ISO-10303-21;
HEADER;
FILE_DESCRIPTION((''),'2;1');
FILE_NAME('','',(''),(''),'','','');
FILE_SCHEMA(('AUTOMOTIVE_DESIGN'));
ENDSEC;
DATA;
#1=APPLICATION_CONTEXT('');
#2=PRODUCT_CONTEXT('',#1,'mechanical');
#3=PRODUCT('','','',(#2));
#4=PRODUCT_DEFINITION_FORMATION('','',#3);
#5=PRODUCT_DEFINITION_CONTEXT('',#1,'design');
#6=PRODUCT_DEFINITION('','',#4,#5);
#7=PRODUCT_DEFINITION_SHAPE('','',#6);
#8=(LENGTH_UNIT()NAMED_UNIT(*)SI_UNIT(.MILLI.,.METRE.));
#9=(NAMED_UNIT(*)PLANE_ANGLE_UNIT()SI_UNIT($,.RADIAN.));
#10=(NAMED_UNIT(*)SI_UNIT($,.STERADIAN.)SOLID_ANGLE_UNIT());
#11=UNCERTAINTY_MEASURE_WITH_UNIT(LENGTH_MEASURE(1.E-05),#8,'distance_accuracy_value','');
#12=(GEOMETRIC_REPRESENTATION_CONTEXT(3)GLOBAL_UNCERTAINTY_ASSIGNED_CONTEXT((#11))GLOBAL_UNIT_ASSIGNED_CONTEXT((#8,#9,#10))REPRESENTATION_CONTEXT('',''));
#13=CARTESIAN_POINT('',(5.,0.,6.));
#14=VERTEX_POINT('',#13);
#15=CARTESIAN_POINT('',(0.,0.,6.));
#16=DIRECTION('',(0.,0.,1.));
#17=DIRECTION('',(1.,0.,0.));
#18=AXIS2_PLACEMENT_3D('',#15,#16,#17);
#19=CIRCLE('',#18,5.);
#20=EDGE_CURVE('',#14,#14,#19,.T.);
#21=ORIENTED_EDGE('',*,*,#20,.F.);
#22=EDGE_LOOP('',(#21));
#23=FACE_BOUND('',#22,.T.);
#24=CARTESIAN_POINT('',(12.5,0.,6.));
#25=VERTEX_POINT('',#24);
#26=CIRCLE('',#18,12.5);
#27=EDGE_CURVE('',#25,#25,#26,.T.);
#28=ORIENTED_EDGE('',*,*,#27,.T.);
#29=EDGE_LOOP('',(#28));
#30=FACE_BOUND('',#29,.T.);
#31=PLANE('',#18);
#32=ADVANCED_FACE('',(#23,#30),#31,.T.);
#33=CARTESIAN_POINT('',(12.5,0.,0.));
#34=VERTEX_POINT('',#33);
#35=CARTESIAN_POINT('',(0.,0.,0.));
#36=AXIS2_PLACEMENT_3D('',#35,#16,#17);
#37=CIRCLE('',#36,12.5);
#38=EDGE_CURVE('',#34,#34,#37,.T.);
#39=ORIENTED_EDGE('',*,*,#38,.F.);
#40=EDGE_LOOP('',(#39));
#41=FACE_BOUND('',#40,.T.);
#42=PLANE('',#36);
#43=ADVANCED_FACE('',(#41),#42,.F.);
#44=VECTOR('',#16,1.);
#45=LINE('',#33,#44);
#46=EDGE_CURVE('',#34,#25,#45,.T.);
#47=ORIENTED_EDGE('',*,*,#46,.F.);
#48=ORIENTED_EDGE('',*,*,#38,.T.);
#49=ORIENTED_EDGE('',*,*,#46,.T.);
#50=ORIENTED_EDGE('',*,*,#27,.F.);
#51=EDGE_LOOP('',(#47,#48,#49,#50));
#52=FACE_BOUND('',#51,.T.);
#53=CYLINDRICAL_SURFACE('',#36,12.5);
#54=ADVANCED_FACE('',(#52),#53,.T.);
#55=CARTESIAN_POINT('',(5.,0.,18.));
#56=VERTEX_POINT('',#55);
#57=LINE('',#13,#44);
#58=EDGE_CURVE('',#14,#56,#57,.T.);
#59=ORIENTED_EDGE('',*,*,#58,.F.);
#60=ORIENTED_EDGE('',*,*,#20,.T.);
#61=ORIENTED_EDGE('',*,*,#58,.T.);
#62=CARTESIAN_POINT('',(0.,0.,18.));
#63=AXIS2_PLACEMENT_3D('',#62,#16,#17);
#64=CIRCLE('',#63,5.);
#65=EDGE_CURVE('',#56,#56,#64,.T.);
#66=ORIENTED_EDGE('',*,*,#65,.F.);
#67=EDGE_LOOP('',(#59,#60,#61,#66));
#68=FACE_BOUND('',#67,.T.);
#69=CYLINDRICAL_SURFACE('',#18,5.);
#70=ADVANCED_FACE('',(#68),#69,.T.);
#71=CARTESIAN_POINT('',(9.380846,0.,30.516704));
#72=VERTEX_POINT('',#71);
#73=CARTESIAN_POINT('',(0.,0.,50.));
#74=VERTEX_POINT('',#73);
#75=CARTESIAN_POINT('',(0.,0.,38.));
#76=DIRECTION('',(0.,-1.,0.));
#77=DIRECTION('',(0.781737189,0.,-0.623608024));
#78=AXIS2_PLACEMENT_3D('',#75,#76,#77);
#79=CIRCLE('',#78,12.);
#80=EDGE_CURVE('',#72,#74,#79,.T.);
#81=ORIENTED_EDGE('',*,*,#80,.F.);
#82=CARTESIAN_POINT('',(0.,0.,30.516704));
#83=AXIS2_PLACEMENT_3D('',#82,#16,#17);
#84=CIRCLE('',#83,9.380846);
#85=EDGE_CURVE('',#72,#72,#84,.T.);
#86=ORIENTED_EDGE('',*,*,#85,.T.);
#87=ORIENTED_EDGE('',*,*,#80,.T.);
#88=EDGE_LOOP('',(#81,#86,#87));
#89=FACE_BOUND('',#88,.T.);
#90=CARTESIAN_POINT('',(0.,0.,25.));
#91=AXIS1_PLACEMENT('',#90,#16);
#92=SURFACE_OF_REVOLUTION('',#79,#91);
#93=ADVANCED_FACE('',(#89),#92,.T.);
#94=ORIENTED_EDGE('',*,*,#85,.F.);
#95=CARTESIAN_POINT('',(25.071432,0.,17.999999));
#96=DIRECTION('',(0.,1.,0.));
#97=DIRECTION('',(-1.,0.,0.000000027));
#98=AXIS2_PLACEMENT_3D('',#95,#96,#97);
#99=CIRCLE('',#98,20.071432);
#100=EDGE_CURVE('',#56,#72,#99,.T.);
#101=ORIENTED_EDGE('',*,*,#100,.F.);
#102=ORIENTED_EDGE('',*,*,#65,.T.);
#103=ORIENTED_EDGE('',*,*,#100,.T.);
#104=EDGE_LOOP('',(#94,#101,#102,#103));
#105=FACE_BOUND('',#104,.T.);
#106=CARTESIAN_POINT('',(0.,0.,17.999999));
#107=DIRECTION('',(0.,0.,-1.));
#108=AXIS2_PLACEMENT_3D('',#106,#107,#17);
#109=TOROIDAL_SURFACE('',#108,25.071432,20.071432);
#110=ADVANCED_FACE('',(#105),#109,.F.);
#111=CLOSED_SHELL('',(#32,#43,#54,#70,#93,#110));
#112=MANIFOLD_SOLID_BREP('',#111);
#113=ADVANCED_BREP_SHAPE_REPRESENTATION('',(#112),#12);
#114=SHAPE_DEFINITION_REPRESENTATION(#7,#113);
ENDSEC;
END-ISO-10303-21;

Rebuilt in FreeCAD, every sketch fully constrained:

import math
import FreeCAD as App
import Part
import Sketcher
from FreeCAD import Vector
Q = App.Units.Quantity

doc = App.newDocument("Part")
body = doc.addObject("PartDesign::Body", "Body")

# Sketch on XZ plane
sketch1 = body.newObject("Sketcher::SketchObject", "Sketch")
sketch1.AttachmentSupport = (doc.getObject("XZ_Plane"), [""])
sketch1.MapMode = "FlatFace"
sketch1.addGeometry(Part.LineSegment(Vector(5, 6, 0), Vector(5, 18, 0)), False)
sketch1.addGeometry(Part.ArcOfCircle(Part.Circle(Vector(25, 18, 0), Vector(0, 0, 1), 20), math.radians(141), math.radians(180)), False)
sketch1.addGeometry(Part.ArcOfCircle(Part.Circle(Vector(0, 38, 0), Vector(0, 0, 1), 12), math.radians(-39), math.radians(90)), False)
sketch1.addGeometry(Part.LineSegment(Vector(0, 50, 0), Vector(0, 0, 0)), False)
sketch1.addGeometry(Part.LineSegment(Vector(0, 0, 0), Vector(12, 0, 0)), False)
sketch1.addGeometry(Part.LineSegment(Vector(12, 0, 0), Vector(12, 6, 0)), False)
sketch1.addGeometry(Part.LineSegment(Vector(12, 6, 0), Vector(5, 6, 0)), False)
sketch1.addConstraint(Sketcher.Constraint("Tangent", 0, 2, 1, 2))
sketch1.addConstraint(Sketcher.Constraint("Tangent", 1, 1, 2, 1))
sketch1.addConstraint(Sketcher.Constraint("Coincident", 2, 2, 3, 1))
sketch1.addConstraint(Sketcher.Constraint("Coincident", 3, 2, 4, 1))
sketch1.addConstraint(Sketcher.Constraint("Coincident", 4, 2, 5, 1))
sketch1.addConstraint(Sketcher.Constraint("Coincident", 5, 2, 6, 1))
sketch1.addConstraint(Sketcher.Constraint("Coincident", 6, 2, 0, 1))
sketch1.addConstraint(Sketcher.Constraint("Vertical", 0))
sketch1.addConstraint(Sketcher.Constraint("Vertical", 3))
sketch1.addConstraint(Sketcher.Constraint("Horizontal", 4))
sketch1.addConstraint(Sketcher.Constraint("Vertical", 5))
sketch1.addConstraint(Sketcher.Constraint("Horizontal", 6))
sketch1.addConstraint(Sketcher.Constraint("Coincident", 3, 2, -1, 1))
sketch1.addConstraint(Sketcher.Constraint("PointOnObject", 2, 3, -2))
sketch1.addConstraint(Sketcher.Constraint("Radius", 2, Q("12 mm")))
sketch1.addConstraint(Sketcher.Constraint("DistanceY", 0, 1, 0, 2, Q("12 mm")))
sketch1.addConstraint(Sketcher.Constraint("DistanceY", 3, 2, 3, 1, Q("50 mm")))
sketch1.addConstraint(Sketcher.Constraint("DistanceY", 5, 1, 5, 2, Q("6 mm")))
sketch1.addConstraint(Sketcher.Constraint("DistanceX", 4, 1, 4, 2, Q("12.5 mm")))
sketch1.addConstraint(Sketcher.Constraint("DistanceX", 6, 2, 6, 1, Q("7.5 mm")))
revolution = body.newObject("PartDesign::Revolution", "Revolution")
revolution.Profile = sketch1
revolution.ReferenceAxis = (sketch1, ["V_Axis"])
revolution.Angle = 360

doc.recompute()
